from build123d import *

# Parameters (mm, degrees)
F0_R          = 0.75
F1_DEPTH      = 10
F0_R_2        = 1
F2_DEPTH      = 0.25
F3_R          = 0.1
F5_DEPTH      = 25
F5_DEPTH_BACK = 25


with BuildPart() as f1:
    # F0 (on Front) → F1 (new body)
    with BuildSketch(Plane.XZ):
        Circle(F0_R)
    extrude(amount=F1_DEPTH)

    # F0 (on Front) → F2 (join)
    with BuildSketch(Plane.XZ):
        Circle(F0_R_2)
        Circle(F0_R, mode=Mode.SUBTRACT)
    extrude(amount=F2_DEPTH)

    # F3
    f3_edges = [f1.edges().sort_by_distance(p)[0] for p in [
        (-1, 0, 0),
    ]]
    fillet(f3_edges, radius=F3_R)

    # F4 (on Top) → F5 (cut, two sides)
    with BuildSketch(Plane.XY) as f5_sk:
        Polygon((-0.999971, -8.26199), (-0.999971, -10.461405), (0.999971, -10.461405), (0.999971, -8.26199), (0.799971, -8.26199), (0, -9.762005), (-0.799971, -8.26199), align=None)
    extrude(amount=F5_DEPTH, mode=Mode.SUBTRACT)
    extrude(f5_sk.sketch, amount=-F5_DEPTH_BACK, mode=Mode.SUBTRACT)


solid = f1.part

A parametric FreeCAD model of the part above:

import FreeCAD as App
import Part
import Sketcher

V = App.Vector
Q = App.Units.Quantity


def edges_at(feature, points):
    """Names of the edges that pass closest to the given points."""
    edges = feature.Shape.Edges
    near = lambda p: min(range(len(edges)), key=lambda i: edges[i].distToShape(Part.Vertex(*p))[0])
    return sorted({f"Edge{near(p) + 1}" for p in points})


def add_polygon(sketch, points):
    """Adds a closed chain of lines whose ends are joined by coincident constraints."""
    first, n = sketch.GeometryCount, len(points)
    for a, b in zip(points, points[1:] + points[:1]):
        sketch.addGeometry(Part.LineSegment(App.Vector(*a, 0), App.Vector(*b, 0)), False)
    for i in range(n):
        sketch.addConstraint(Sketcher.Constraint("Coincident", first + i, 2, first + (i + 1) % n, 1))

doc = App.newDocument("Part")
params = doc.addObject("Spreadsheet::Sheet", "Params")
for row, (alias, value) in enumerate([
    ("sketch1_diameter", "1.5 mm"),
    ("pad1_length", "10 mm"),
    ("sketch2_diameter", "2 mm"),
    ("sketch2_diameter2", "1.5 mm"),
    ("pad2_length", "0.25 mm"),
    ("fillet_radius", "0.1 mm"),
    ("sketch3_width", "0.2 mm"),
    ("sketch3_length", "1.7 mm"),
], start=1):
    params.set(f"A{row}", alias)
    params.set(f"B{row}", "=" + value)
    params.setAlias(f"B{row}", alias)

body = doc.addObject("PartDesign::Body", "Body")

sketch1 = body.newObject("Sketcher::SketchObject", "Sketch")
sketch1.AttachmentSupport = (doc.getObject("XZ_Plane"), [""])
sketch1.MapMode = "FlatFace"
sketch1.addGeometry(Part.Circle(V(0, 0, 0), V(0, 0, 1), 0.8), False)
sketch1.addConstraint(Sketcher.Constraint("Coincident", 0, 3, -1, 1))
sketch1.addConstraint(Sketcher.Constraint("Diameter", 0, Q("1.5 mm")))
sketch1.setExpression("Constraints[1]", "Params.sketch1_diameter")
pad1 = body.newObject("PartDesign::Pad", "Pad")
pad1.Profile = sketch1
pad1.setExpression("Length", "Params.pad1_length")

sketch2 = body.newObject("Sketcher::SketchObject", "Sketch001")
sketch2.AttachmentSupport = (doc.getObject("XZ_Plane"), [""])
sketch2.MapMode = "FlatFace"
sketch2.addGeometry(Part.Circle(V(0, 0, 0), V(0, 0, 1), 1), False)
sketch2.addGeometry(Part.Circle(V(0, 0, 0), V(0, 0, 1), 0.8), False)
sketch2.addConstraint(Sketcher.Constraint("Coincident", 0, 3, -1, 1))
sketch2.addConstraint(Sketcher.Constraint("Coincident", 1, 3, -1, 1))
sketch2.addConstraint(Sketcher.Constraint("Diameter", 0, Q("2 mm")))
sketch2.addConstraint(Sketcher.Constraint("Diameter", 1, Q("1.5 mm")))
sketch2.setExpression("Constraints[2]", "Params.sketch2_diameter")
sketch2.setExpression("Constraints[3]", "Params.sketch2_diameter2")
pad2 = body.newObject("PartDesign::Pad", "Pad001")
pad2.Profile = sketch2
pad2.setExpression("Length", "Params.pad2_length")
doc.recompute()

fillet = body.newObject("PartDesign::Fillet", "Fillet")
fillet.Base = (pad2, edges_at(pad2, [(-1, 0, 0)]))
fillet.setExpression("Radius", "Params.fillet_radius")

sketch3 = body.newObject("Sketcher::SketchObject", "Sketch002")
sketch3.AttachmentSupport = (doc.getObject("XY_Plane"), [""])
sketch3.MapMode = "FlatFace"
add_polygon(sketch3, [(-1, -8.26), (-1, -10.46), (1, -10.46), (1, -8.26), (0.8, -8.26), (0, -9.76), (-0.8, -8.26)])
sketch3.addConstraint(Sketcher.Constraint("Vertical", 0))
sketch3.addConstraint(Sketcher.Constraint("Horizontal", 1))
sketch3.addConstraint(Sketcher.Constraint("Vertical", 2))
sketch3.addConstraint(Sketcher.Constraint("Horizontal", 3))
sketch3.addConstraint(Sketcher.Constraint("Horizontal", 6))
sketch3.addConstraint(Sketcher.Constraint("Symmetric", 3, 2, 5, 2, -2))
sketch3.addConstraint(Sketcher.Constraint("PointOnObject", 4, 2, -2))
sketch3.addConstraint(Sketcher.Constraint("Equal", 3, 6))
sketch3.addConstraint(Sketcher.Constraint("DistanceX", 3, 2, 3, 1, Q("0.2 mm")))
sketch3.addConstraint(Sketcher.Constraint("Distance", 4, Q("1.7 mm")))
sketch3.addConstraint(Sketcher.Constraint("DistanceY", 0, 2, 4, 2, Q("0.6994 mm")))
sketch3.addConstraint(Sketcher.Constraint("DistanceX", 1, 1, 1, 2, Q("1.999942 mm")))
sketch3.addConstraint(Sketcher.Constraint("DistanceY", 2, 2, -1, 1, Q("8.26199 mm")))
sketch3.setExpression("Constraints[15]", "Params.sketch3_width")
sketch3.setExpression("Constraints[16]", "Params.sketch3_length")
pocket1 = body.newObject("PartDesign::Pocket", "Pocket")
pocket1.Profile = sketch3
pocket1.Type = "ThroughAll"
pocket1.Midplane = True

doc.recompute()
